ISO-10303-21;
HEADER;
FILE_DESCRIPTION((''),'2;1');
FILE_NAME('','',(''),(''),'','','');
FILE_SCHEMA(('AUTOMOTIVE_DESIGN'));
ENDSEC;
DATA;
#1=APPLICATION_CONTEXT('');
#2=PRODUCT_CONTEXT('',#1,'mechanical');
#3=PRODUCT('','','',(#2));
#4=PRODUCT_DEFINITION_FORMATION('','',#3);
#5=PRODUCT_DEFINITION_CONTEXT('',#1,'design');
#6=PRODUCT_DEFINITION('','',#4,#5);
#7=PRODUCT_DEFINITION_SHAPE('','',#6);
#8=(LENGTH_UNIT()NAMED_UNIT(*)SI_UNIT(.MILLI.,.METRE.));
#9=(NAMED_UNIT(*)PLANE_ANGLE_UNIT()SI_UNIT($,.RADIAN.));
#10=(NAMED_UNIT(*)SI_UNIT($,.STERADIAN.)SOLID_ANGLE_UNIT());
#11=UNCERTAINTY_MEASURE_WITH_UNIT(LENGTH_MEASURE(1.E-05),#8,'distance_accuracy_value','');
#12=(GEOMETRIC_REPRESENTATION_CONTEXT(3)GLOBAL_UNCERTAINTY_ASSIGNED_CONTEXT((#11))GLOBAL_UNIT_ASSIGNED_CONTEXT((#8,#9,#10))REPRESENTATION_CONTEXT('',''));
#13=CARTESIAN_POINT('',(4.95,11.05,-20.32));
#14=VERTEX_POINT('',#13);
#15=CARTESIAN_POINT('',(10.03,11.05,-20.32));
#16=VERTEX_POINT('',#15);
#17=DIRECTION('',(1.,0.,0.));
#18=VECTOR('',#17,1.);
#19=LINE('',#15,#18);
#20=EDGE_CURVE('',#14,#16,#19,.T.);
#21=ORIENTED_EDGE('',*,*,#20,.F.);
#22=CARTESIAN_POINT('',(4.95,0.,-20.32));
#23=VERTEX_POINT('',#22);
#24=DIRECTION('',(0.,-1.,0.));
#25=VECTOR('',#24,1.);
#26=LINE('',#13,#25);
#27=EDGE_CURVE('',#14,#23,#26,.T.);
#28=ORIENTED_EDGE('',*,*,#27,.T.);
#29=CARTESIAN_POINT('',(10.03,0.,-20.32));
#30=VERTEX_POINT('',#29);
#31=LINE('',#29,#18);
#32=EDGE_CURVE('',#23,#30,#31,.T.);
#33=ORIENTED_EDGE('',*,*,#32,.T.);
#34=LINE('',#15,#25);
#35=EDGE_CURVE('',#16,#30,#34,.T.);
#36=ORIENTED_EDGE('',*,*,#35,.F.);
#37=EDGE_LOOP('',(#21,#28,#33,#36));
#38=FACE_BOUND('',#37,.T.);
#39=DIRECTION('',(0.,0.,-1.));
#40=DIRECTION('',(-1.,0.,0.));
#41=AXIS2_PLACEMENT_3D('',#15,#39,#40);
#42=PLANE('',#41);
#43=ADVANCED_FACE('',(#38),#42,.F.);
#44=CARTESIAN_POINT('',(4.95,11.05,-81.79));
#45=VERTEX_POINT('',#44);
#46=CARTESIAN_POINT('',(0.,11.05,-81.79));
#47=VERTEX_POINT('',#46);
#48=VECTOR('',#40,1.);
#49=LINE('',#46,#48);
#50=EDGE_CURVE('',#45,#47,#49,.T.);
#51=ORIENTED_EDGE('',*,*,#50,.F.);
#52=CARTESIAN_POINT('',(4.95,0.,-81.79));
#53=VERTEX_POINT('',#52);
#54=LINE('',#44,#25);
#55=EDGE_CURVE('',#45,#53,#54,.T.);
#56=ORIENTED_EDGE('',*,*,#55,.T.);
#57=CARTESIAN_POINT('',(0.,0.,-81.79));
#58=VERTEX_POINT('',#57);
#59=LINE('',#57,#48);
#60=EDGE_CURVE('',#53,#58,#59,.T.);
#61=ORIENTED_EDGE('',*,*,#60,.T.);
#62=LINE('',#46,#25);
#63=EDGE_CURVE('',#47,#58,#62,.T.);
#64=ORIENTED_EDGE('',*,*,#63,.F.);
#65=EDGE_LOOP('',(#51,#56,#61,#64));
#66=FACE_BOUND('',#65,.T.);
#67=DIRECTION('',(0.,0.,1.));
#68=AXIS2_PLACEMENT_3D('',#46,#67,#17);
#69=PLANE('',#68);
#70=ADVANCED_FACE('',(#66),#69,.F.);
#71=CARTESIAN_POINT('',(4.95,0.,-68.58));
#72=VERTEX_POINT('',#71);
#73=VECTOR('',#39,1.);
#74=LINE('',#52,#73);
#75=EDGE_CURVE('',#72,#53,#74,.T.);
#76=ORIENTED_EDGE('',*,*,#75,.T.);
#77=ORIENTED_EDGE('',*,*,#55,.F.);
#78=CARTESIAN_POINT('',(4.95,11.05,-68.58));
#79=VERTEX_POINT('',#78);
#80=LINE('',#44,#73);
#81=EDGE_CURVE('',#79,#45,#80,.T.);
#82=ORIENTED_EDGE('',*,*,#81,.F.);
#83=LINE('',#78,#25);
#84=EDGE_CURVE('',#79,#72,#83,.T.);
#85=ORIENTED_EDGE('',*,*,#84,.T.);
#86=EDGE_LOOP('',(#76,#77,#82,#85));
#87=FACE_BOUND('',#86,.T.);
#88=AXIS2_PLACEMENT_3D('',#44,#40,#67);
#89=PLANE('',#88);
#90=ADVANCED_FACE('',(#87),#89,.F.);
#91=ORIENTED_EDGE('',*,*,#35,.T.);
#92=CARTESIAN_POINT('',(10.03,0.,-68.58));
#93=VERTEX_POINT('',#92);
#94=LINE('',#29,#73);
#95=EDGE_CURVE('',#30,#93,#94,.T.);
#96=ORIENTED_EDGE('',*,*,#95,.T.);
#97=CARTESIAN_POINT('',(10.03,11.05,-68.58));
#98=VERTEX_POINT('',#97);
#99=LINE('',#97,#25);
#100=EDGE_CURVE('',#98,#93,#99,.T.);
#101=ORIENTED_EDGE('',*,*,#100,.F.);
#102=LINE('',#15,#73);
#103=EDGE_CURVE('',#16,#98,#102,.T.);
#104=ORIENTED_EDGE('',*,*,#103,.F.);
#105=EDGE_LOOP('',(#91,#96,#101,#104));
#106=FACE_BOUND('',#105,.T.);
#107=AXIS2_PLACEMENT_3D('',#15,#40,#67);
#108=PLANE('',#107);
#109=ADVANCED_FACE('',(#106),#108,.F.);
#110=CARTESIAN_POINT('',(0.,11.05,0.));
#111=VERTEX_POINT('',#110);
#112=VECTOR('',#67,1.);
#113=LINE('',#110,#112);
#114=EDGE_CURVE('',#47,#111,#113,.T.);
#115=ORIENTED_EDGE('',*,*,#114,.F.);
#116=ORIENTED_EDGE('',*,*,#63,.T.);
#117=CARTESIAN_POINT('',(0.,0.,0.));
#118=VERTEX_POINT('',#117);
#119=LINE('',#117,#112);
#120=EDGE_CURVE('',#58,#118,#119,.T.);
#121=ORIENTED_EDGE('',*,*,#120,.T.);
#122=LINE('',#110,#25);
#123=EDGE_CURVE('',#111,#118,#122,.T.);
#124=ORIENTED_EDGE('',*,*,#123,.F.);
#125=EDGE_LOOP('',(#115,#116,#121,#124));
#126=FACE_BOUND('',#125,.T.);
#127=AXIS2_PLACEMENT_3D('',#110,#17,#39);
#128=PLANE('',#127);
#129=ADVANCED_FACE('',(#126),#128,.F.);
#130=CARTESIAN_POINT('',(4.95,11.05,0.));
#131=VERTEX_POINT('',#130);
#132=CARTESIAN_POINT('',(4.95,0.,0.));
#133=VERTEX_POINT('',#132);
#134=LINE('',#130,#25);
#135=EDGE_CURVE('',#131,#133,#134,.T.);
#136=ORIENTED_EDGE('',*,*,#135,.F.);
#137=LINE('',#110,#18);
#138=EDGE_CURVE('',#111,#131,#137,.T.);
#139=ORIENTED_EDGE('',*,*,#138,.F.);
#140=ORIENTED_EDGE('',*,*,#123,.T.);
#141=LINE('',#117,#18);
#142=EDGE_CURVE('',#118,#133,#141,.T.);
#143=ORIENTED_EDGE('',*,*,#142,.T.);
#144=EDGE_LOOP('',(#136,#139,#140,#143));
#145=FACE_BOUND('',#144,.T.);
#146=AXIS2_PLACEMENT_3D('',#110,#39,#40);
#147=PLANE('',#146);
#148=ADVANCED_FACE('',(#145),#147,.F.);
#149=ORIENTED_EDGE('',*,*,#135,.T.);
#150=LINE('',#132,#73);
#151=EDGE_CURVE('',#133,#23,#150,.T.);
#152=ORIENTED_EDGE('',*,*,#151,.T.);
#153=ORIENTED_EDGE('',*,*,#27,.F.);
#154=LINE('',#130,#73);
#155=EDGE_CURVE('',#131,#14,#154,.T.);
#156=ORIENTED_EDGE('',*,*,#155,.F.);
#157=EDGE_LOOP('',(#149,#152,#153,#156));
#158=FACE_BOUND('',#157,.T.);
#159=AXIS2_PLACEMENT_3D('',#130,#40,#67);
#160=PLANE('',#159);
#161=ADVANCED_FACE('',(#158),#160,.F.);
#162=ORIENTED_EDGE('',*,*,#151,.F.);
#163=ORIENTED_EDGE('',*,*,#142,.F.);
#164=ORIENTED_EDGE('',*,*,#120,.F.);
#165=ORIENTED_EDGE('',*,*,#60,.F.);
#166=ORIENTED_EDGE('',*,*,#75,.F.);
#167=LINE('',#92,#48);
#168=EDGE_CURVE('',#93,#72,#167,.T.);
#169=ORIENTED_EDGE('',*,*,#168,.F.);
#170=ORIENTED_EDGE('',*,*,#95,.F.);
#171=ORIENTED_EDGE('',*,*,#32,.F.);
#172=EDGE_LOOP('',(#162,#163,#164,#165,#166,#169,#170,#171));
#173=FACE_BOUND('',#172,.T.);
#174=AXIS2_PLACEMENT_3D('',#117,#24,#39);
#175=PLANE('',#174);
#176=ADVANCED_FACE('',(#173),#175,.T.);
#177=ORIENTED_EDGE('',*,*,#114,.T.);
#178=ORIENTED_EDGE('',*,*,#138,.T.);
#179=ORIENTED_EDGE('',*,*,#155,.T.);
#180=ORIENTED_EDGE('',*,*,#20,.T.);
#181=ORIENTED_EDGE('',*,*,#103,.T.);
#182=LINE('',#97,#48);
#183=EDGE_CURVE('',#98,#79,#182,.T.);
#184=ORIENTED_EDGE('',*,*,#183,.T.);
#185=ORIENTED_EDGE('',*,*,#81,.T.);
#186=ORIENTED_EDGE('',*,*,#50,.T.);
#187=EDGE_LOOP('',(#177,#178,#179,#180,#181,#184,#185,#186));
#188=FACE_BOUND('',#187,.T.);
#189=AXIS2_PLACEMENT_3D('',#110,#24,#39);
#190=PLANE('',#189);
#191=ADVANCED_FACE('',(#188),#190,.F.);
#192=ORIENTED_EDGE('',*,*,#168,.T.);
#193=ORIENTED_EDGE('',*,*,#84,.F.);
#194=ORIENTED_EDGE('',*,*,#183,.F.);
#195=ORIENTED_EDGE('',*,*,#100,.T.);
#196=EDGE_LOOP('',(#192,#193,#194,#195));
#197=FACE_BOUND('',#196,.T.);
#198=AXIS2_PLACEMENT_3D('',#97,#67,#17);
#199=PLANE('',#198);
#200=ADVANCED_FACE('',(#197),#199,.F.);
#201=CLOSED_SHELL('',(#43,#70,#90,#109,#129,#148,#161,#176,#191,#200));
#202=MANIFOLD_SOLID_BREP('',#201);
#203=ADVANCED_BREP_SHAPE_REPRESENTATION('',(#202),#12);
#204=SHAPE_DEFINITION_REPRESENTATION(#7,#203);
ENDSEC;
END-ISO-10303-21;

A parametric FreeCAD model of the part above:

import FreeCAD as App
import Part
import Sketcher
from FreeCAD import Vector
Q = App.Units.Quantity


def add_polygon(sketch, points):
    """Adds a closed chain of lines whose ends are joined by coincident constraints."""
    first, n = sketch.GeometryCount, len(points)
    for a, b in zip(points, points[1:] + points[:1]):
        sketch.addGeometry(Part.LineSegment(App.Vector(*a, 0), App.Vector(*b, 0)), False)
    for i in range(n):
        sketch.addConstraint(Sketcher.Constraint("Coincident", first + i, 2, first + (i + 1) % n, 1))

doc = App.newDocument("Part")
body = doc.addObject("PartDesign::Body", "Body")

# Sketch on XZ plane
sketch1 = doc.addObject("Sketcher::SketchObject", "Sketch")
body.addObject(sketch1)
sketch1.AttachmentSupport = (doc.XZ_Plane, [""])
sketch1.MapMode = "FlatFace"
add_polygon(sketch1, [(0, 0), (4.95, 0), (4.95, -20.32), (10.03, -20.32), (10.03, -68.58), (4.95, -68.58), (4.95, -81.79), (0, -81.79)])  # lines 0-7
sketch1.addConstraint([
    Sketcher.Constraint("Horizontal", 0),
    Sketcher.Constraint("Vertical", 1),
    Sketcher.Constraint("Horizontal", 2),
    Sketcher.Constraint("Vertical", 3),
    Sketcher.Constraint("Horizontal", 4),
    Sketcher.Constraint("Vertical", 5),
    Sketcher.Constraint("Horizontal", 6),
    Sketcher.Constraint("Vertical", 7),
    Sketcher.Constraint("Coincident", 7, 2, -1, 1),
    Sketcher.Constraint("Vertical", 1, 2, 4, 2),
    Sketcher.Constraint("DistanceX", 2, 1, 2, 2, Q("0.2 in")),
    Sketcher.Constraint("DistanceY", 1, 2, 1, 1, Q("0.8 in")),
    Sketcher.Constraint("DistanceY", 3, 2, 3, 1, Q("1.9 in")),
    Sketcher.Constraint("DistanceX", 0, 1, 0, 2, 4.95),
    Sketcher.Constraint("DistanceY", 5, 2, 5, 1, 13.21),
])
pad1 = doc.addObject("PartDesign::Pad", "Pad")
body.addObject(pad1)
pad1.Profile = sketch1
pad1.Length = 11.05
pad1.Reversed = True

doc.recompute()
